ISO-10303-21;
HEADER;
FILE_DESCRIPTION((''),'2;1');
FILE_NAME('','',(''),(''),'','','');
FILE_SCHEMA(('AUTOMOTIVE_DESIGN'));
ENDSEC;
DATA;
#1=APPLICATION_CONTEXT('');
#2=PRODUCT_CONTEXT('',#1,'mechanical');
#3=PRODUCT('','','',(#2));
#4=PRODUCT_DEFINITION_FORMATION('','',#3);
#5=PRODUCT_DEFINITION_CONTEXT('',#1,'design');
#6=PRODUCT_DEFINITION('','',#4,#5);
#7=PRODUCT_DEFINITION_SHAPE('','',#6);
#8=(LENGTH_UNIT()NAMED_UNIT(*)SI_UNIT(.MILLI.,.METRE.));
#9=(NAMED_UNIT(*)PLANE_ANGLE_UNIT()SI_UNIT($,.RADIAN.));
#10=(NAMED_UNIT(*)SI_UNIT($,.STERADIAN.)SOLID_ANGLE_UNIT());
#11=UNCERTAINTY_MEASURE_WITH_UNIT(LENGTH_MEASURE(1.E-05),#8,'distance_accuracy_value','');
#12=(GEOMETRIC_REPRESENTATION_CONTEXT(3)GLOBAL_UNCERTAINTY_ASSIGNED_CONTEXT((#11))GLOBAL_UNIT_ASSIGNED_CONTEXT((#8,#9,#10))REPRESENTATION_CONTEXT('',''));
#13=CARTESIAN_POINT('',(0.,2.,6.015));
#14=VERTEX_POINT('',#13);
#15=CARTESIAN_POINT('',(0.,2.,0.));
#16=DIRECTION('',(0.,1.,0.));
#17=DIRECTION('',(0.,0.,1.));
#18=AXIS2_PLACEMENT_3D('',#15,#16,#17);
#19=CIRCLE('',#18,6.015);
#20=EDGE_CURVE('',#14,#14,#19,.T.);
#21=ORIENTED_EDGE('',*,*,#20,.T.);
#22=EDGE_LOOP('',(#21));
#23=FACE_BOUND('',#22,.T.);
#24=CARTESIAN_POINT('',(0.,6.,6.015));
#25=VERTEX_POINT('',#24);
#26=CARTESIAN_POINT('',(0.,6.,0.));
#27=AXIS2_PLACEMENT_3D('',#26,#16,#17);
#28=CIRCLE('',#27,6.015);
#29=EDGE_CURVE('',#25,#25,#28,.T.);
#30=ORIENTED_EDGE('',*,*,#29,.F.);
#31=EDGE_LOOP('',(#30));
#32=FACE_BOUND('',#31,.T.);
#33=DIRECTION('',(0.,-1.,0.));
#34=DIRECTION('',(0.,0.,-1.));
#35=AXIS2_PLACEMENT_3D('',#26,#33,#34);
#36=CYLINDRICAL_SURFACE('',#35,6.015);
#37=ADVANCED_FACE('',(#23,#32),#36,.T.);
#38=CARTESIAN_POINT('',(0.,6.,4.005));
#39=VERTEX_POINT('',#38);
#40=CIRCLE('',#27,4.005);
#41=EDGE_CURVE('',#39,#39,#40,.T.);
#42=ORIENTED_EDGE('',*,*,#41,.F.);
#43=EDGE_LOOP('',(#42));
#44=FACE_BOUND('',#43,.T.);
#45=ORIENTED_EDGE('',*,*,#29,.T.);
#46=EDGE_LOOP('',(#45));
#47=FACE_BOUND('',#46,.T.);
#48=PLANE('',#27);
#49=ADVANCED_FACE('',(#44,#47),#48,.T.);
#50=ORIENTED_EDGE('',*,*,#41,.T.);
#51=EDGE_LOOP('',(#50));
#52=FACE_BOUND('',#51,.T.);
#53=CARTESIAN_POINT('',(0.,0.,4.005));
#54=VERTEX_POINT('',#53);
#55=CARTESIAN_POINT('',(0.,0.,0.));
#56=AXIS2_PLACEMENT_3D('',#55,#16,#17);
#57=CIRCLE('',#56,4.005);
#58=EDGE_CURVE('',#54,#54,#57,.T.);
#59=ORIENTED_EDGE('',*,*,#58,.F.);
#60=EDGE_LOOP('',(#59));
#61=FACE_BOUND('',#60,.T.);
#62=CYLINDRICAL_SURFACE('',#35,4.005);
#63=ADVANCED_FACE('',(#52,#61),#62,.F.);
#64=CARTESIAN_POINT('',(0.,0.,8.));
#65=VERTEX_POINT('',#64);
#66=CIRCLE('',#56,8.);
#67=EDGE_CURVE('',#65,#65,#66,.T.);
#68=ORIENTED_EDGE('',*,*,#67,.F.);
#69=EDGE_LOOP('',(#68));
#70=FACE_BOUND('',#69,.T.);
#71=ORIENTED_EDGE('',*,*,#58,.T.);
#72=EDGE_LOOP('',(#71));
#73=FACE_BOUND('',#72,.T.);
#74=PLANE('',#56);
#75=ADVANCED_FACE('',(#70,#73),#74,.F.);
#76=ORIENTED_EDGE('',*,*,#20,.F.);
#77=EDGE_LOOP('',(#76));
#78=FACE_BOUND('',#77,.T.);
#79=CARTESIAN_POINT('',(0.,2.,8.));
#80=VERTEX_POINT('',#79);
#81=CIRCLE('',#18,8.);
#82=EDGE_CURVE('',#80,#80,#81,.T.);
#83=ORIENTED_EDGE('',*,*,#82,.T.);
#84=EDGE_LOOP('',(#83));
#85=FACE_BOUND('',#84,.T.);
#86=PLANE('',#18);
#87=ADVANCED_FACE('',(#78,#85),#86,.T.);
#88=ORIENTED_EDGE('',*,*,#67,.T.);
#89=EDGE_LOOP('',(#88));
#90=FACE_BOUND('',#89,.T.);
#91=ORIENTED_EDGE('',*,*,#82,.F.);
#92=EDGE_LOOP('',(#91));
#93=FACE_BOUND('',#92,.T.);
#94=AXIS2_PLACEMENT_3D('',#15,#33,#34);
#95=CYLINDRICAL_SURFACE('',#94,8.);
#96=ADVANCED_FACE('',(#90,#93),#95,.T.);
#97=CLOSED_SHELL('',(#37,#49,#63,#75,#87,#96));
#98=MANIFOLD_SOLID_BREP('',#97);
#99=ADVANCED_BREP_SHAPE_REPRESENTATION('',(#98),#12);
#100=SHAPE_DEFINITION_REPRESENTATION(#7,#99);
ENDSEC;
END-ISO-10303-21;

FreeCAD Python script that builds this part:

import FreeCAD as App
import Part
import Sketcher

V = App.Vector

doc = App.newDocument("Part")
body = doc.addObject("PartDesign::Body", "Body")

sketch1 = doc.addObject("Sketcher::SketchObject", "Sketch")
body.addObject(sketch1)
sketch1.AttachmentSupport = (doc.XZ_Plane, [""])
sketch1.MapMode = "FlatFace"
sketch1.addGeometry(Part.Circle(V(0, 0, 0), V(0, 0, 1), 6.015), False)
sketch1.addGeometry(Part.Circle(V(0, 0, 0), V(0, 0, 1), 4.005), False)
sketch1.addConstraint(Sketcher.Constraint("Coincident", 0, 3, -1, 1))
sketch1.addConstraint(Sketcher.Constraint("Coincident", 1, 3, -1, 1))
sketch1.addConstraint(Sketcher.Constraint("Diameter", 0, 12.03))
sketch1.addConstraint(Sketcher.Constraint("Diameter", 1, 8.01))
pad1 = doc.addObject("PartDesign::Pad", "Pad")
body.addObject(pad1)
pad1.Profile = sketch1
pad1.Length = 6
pad1.Reversed = True

sketch2 = doc.addObject("Sketcher::SketchObject", "Sketch001")
body.addObject(sketch2)
sketch2.AttachmentSupport = (doc.XZ_Plane, [""])
sketch2.MapMode = "FlatFace"
sketch2.addGeometry(Part.Circle(V(0, 0, 0), V(0, 0, 1), 8), False)
sketch2.addGeometry(Part.Circle(V(0, 0, 0), V(0, 0, 1), 6.015), False)
sketch2.addConstraint(Sketcher.Constraint("Coincident", 0, 3, -1, 1))
sketch2.addConstraint(Sketcher.Constraint("Coincident", 1, 3, -1, 1))
sketch2.addConstraint(Sketcher.Constraint("Diameter", 0, 16.0))
sketch2.addConstraint(Sketcher.Constraint("Diameter", 1, 12.03))
pad2 = doc.addObject("PartDesign::Pad", "Pad001")
body.addObject(pad2)
pad2.Profile = sketch2
pad2.Length = 2
pad2.Reversed = True

doc.recompute()
